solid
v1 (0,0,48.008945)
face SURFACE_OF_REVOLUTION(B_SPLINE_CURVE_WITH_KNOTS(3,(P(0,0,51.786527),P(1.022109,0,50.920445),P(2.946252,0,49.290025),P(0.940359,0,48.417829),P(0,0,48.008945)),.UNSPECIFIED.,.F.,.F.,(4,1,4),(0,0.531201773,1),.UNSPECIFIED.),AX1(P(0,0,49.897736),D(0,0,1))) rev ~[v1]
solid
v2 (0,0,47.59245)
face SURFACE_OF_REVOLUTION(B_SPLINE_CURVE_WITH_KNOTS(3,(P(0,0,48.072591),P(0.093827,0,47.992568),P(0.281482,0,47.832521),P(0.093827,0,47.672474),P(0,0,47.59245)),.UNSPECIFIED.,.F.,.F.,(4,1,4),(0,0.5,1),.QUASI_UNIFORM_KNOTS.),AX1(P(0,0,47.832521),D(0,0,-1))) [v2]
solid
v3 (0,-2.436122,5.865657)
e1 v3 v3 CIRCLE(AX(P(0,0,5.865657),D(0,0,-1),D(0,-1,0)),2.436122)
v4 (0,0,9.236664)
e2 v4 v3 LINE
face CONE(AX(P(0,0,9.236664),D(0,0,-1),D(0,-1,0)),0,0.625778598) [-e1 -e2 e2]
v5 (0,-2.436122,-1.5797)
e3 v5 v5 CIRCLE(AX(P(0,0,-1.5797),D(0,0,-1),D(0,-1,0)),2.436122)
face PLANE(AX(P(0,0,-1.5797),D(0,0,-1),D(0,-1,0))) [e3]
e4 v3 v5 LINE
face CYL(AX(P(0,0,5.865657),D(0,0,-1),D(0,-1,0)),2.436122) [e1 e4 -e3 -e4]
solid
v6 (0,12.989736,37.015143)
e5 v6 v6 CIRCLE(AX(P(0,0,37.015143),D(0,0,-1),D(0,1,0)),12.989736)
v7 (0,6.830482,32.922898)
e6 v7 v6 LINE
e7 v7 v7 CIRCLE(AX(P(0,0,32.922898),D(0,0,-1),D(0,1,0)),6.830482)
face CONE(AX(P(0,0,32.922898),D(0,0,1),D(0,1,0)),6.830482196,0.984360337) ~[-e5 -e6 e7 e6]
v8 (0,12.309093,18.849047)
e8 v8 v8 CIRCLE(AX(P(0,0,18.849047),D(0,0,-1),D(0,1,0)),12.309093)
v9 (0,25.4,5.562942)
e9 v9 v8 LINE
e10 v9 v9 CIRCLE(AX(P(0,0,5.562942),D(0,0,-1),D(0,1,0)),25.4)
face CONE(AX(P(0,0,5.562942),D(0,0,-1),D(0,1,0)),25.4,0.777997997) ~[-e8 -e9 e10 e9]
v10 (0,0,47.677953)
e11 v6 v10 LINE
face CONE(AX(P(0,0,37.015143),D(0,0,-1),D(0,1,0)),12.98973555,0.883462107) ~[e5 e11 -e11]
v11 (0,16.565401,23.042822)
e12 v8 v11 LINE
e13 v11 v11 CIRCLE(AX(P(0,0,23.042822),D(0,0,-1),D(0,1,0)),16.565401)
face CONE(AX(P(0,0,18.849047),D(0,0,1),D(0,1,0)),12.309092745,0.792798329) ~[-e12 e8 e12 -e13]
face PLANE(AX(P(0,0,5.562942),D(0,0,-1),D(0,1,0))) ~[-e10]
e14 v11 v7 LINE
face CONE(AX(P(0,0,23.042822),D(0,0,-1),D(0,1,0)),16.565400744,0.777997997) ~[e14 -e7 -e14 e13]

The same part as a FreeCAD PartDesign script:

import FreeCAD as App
import Part
import Sketcher
from FreeCAD import Vector
Q = App.Units.Quantity


def add_polygon(sketch, points):
    """Adds a closed chain of lines whose ends are joined by coincident constraints."""
    first, n = sketch.GeometryCount, len(points)
    for a, b in zip(points, points[1:] + points[:1]):
        sketch.addGeometry(Part.LineSegment(App.Vector(*a, 0), App.Vector(*b, 0)), False)
    for i in range(n):
        sketch.addConstraint(Sketcher.Constraint("Coincident", first + i, 2, first + (i + 1) % n, 1))

doc = App.newDocument("Part")
body = doc.addObject("PartDesign::Body", "Body")

sketch1 = body.newObject("Sketcher::SketchObject", "Sketch")
sketch1.AttachmentSupport = (doc.getObject("YZ_Plane"), [""])
sketch1.MapMode = "FlatFace"
add_polygon(sketch1, [(12.989736, 37.015143), (0, 47.677953), (0, 5.562942), (25.4, 5.562942), (12.309093, 18.849047), (16.565401, 23.042822), (6.830482, 32.922898)])
sketch1.addConstraint([
    Sketcher.Constraint("Vertical", 1),
    Sketcher.Constraint("Horizontal", 2),
    Sketcher.Constraint("PointOnObject", 0, 2, -2),
    Sketcher.Constraint("Perpendicular", 3, 4),
    Sketcher.Constraint("Perpendicular", 4, 5),
    Sketcher.Constraint("DistanceX", 2, 1, 2, 2, Q("1 in")),
    Sketcher.Constraint("DistanceY", 1, 2, 1, 1, 42.115011),
    Sketcher.Constraint("DistanceX", -1, 1, 4, 2, 16.565401),
    Sketcher.Constraint("DistanceY", 2, 2, 6, 2, 31.452201),
    Sketcher.Constraint("DistanceY", 2, 2, 4, 2, 17.47988),
    Sketcher.Constraint("DistanceX", 5, 2, 4, 2, 9.734919),
    Sketcher.Constraint("DistanceX", 5, 2, 3, 2, 5.478611),
    Sketcher.Constraint("Distance", 0, 16.805616),
    Sketcher.Constraint("DistanceY", -1, 1, 0, 2, 47.677953),
])
revolution = body.newObject("PartDesign::Revolution", "Revolution")
revolution.Profile = sketch1
revolution.ReferenceAxis = (sketch1, ["V_Axis"])
revolution.Angle = 360
body2 = doc.addObject("PartDesign::Body", "Body001")

sketch2 = body2.newObject("Sketcher::SketchObject", "Sketch001")
sketch2.AttachmentSupport = (doc.getObject("XZ_Plane001"), [""])
sketch2.MapMode = "FlatFace"
sketch2.addGeometry([
    Part.LineSegment(Vector(0, 51.786527, 0), Vector(0, 48.008945, 0)),
    Part.BSplineCurve([Vector(0, 51.786527, 0), Vector(1.022109, 50.920445, 0), Vector(2.946252, 49.290025, 0), Vector(0.940359, 48.417829, 0), Vector(0, 48.008945, 0)], [4, 1, 4], [0, 0.531201773, 1], False, 3, [1, 1, 1, 1, 1], False),
], False)
sketch2.addConstraint([
    Sketcher.Constraint("Block", 1),
    Sketcher.Constraint("Coincident", 0, 1, 1, 1),
    Sketcher.Constraint("Coincident", 1, 2, 0, 2),
])
revolution2 = body2.newObject("PartDesign::Revolution", "Revolution001")
revolution2.Profile = sketch2
revolution2.ReferenceAxis = (sketch2, ["V_Axis"])
revolution2.Angle = 360
body3 = doc.addObject("PartDesign::Body", "Body002")

sketch3 = body3.newObject("Sketcher::SketchObject", "Sketch002")
sketch3.AttachmentSupport = (doc.getObject("XZ_Plane002"), [""])
sketch3.MapMode = "FlatFace"
sketch3.addGeometry([
    Part.BSplineCurve([Vector(0, 48.072591, 0), Vector(0.093827, 47.992568, 0), Vector(0.281482, 47.832521, 0), Vector(0.093827, 47.672474, 0), Vector(0, 47.59245, 0)], [4, 1, 4], [0, 0.5, 1], False, 3, [1, 1, 1, 1, 1], False),
    Part.LineSegment(Vector(0, 48.072591, 0), Vector(0, 47.59245, 0)),
], False)
sketch3.addConstraint([
    Sketcher.Constraint("Block", 0),
    Sketcher.Constraint("Coincident", 0, 1, 1, 1),
    Sketcher.Constraint("Coincident", 1, 2, 0, 2),
])
revolution3 = body3.newObject("PartDesign::Revolution", "Revolution002")
revolution3.Profile = sketch3
revolution3.ReferenceAxis = (sketch3, ["V_Axis"])
revolution3.Angle = 360
body4 = doc.addObject("PartDesign::Body", "Body003")

sketch4 = body4.newObject("Sketcher::SketchObject", "Sketch003")
sketch4.AttachmentSupport = (doc.getObject("YZ_Plane003"), [""])
sketch4.MapMode = "FlatFace"
add_polygon(sketch4, [(0, -1.5797), (0, 9.236664), (-2.436122, 5.865657), (-2.436122, -1.5797)])
sketch4.addConstraint([
    Sketcher.Constraint("Vertical", 0),
    Sketcher.Constraint("Vertical", 2),
    Sketcher.Constraint("Horizontal", 3),
    Sketcher.Constraint("PointOnObject", 0, 2, -2),
    Sketcher.Constraint("DistanceY", 2, 2, -1, 1, 1.5797),
    Sketcher.Constraint("DistanceX", 3, 1, 3, 2, 2.436122),
    Sketcher.Constraint("DistanceY", 0, 1, 0, 2, 10.816364),
    Sketcher.Constraint("DistanceY", 2, 2, 2, 1, 7.445357),
])
revolution4 = body4.newObject("PartDesign::Revolution", "Revolution003")
revolution4.Profile = sketch4
revolution4.ReferenceAxis = (sketch4, ["V_Axis"])
revolution4.Angle = 360

doc.recompute()
